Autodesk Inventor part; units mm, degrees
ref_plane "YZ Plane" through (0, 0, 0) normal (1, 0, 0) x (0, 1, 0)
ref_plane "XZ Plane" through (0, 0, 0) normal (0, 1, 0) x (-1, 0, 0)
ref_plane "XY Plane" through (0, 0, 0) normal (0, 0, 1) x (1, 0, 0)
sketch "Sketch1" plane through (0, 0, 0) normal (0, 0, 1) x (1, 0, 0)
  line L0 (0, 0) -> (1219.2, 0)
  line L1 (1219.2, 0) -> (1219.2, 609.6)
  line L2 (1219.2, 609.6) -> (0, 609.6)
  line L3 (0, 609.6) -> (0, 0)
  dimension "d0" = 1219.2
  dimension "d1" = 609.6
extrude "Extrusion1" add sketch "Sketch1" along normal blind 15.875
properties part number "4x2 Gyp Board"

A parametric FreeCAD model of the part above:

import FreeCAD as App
import Part
import Sketcher
from FreeCAD import Vector
Q = App.Units.Quantity

doc = App.newDocument("Part")
params = doc.addObject("Spreadsheet::Sheet", "Params")
for row, (alias, value) in enumerate([
    ("sketch1_width", "48 in"),
    ("sketch1_height", "24 in"),
    ("pad1_length", "0.625 in"),
], start=1):
    params.set(f"A{row}", alias)
    params.set(f"B{row}", "=" + value)
    params.setAlias(f"B{row}", alias)

body = doc.addObject("PartDesign::Body", "Body")

sketch1 = doc.addObject("Sketcher::SketchObject", "Sketch")
body.addObject(sketch1)
sketch1.AttachmentSupport = (doc.XY_Plane, [""])
sketch1.MapMode = "FlatFace"
sketch1.addGeometry([
    Part.LineSegment(Vector(0, 610, 0), Vector(0, 0, 0)),
    Part.LineSegment(Vector(0, 0, 0), Vector(1219, 0, 0)),
    Part.LineSegment(Vector(1219, 0, 0), Vector(1219, 610, 0)),
    Part.LineSegment(Vector(1219, 610, 0), Vector(0, 610, 0)),
], False)
sketch1.addConstraint([
    Sketcher.Constraint("Coincident", 0, 2, 1, 1),
    Sketcher.Constraint("Coincident", 1, 2, 2, 1),
    Sketcher.Constraint("Coincident", 2, 2, 3, 1),
    Sketcher.Constraint("Coincident", 3, 2, 0, 1),
    Sketcher.Constraint("Vertical", 0),
    Sketcher.Constraint("Horizontal", 1),
    Sketcher.Constraint("Vertical", 2),
    Sketcher.Constraint("Horizontal", 3),
    Sketcher.Constraint("Coincident", 0, 2, -1, 1),
    Sketcher.Constraint("DistanceX", 1, 1, 1, 2, Q("48 in")),
    Sketcher.Constraint("DistanceY", 0, 2, 0, 1, Q("24 in")),
])
sketch1.setExpression("Constraints[9]", "Params.sketch1_width")
sketch1.setExpression("Constraints[10]", "Params.sketch1_height")
pad1 = doc.addObject("PartDesign::Pad", "Pad")
body.addObject(pad1)
pad1.Profile = sketch1
pad1.setExpression("Length", "Params.pad1_length")

doc.recompute()
